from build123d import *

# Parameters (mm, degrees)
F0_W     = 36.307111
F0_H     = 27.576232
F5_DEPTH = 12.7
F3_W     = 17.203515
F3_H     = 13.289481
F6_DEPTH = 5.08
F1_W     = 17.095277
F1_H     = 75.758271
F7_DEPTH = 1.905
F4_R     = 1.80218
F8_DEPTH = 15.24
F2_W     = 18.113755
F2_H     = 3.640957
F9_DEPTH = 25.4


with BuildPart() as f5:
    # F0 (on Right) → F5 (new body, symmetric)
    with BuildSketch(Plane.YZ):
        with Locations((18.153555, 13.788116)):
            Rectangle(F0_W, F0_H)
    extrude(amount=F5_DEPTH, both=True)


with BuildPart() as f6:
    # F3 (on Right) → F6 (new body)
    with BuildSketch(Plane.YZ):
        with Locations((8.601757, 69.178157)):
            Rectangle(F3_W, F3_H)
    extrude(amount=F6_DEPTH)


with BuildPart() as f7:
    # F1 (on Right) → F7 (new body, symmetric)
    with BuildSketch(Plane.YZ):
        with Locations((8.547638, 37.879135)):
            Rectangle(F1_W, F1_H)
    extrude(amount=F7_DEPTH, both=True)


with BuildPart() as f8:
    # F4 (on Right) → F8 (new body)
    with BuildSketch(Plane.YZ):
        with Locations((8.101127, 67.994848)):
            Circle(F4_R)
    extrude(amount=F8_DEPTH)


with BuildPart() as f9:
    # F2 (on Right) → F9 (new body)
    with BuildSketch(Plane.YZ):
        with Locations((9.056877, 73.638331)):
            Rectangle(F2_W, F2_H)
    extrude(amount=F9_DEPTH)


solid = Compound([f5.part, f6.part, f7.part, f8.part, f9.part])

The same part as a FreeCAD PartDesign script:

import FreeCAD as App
import Part
import Sketcher
from FreeCAD import Vector
Q = App.Units.Quantity


def add_polygon(sketch, points):
    """Adds a closed chain of lines whose ends are joined by coincident constraints."""
    first, n = sketch.GeometryCount, len(points)
    for a, b in zip(points, points[1:] + points[:1]):
        sketch.addGeometry(Part.LineSegment(App.Vector(*a, 0), App.Vector(*b, 0)), False)
    for i in range(n):
        sketch.addConstraint(Sketcher.Constraint("Coincident", first + i, 2, first + (i + 1) % n, 1))

doc = App.newDocument("Part")
body = doc.addObject("PartDesign::Body", "Body")

sketch1 = body.newObject("Sketcher::SketchObject", "Sketch")
sketch1.AttachmentSupport = (doc.getObject("YZ_Plane"), [""])
sketch1.MapMode = "FlatFace"
add_polygon(sketch1, [(0, 28), (0, 0), (36, 0), (36, 28)])
sketch1.addConstraint(Sketcher.Constraint("Vertical", 0))
sketch1.addConstraint(Sketcher.Constraint("Horizontal", 1))
sketch1.addConstraint(Sketcher.Constraint("Vertical", 2))
sketch1.addConstraint(Sketcher.Constraint("Horizontal", 3))
sketch1.addConstraint(Sketcher.Constraint("Coincident", 0, 2, -1, 1))
sketch1.addConstraint(Sketcher.Constraint("DistanceX", 1, 1, 1, 2, Q("36.307111 mm")))
sketch1.addConstraint(Sketcher.Constraint("DistanceY", 0, 2, 0, 1, Q("27.576232 mm")))
pad1 = body.newObject("PartDesign::Pad", "Pad")
pad1.Profile = sketch1
pad1.Length = Q("1 in")
pad1.Midplane = True
body2 = doc.addObject("PartDesign::Body", "Body001")

sketch2 = body2.newObject("Sketcher::SketchObject", "Sketch001")
sketch2.AttachmentSupport = (doc.getObject("YZ_Plane001"), [""])
sketch2.MapMode = "FlatFace"
add_polygon(sketch2, [(0, 76), (0, 63), (17, 63), (17, 76)])
sketch2.addConstraint(Sketcher.Constraint("Vertical", 0))
sketch2.addConstraint(Sketcher.Constraint("Horizontal", 1))
sketch2.addConstraint(Sketcher.Constraint("Vertical", 2))
sketch2.addConstraint(Sketcher.Constraint("Horizontal", 3))
sketch2.addConstraint(Sketcher.Constraint("PointOnObject", 0, 2, -2))
sketch2.addConstraint(Sketcher.Constraint("DistanceY", 0, 2, 0, 1, Q("13.289481 mm")))
sketch2.addConstraint(Sketcher.Constraint("DistanceX", 1, 1, 1, 2, Q("17.203515 mm")))
sketch2.addConstraint(Sketcher.Constraint("DistanceY", -1, 1, 0, 2, Q("62.533417 mm")))
pad2 = body2.newObject("PartDesign::Pad", "Pad001")
pad2.Profile = sketch2
pad2.Length = Q("0.2 in")
body3 = doc.addObject("PartDesign::Body", "Body002")

sketch3 = body3.newObject("Sketcher::SketchObject", "Sketch002")
sketch3.AttachmentSupport = (doc.getObject("YZ_Plane002"), [""])
sketch3.MapMode = "FlatFace"
add_polygon(sketch3, [(0, 76), (0, 0), (17, 0), (17, 76)])
sketch3.addConstraint(Sketcher.Constraint("Vertical", 0))
sketch3.addConstraint(Sketcher.Constraint("Horizontal", 1))
sketch3.addConstraint(Sketcher.Constraint("Vertical", 2))
sketch3.addConstraint(Sketcher.Constraint("Horizontal", 3))
sketch3.addConstraint(Sketcher.Constraint("Coincident", 0, 2, -1, 1))
sketch3.addConstraint(Sketcher.Constraint("DistanceY", 0, 2, 0, 1, Q("75.758271 mm")))
sketch3.addConstraint(Sketcher.Constraint("DistanceX", 1, 1, 1, 2, Q("17.095277 mm")))
pad3 = body3.newObject("PartDesign::Pad", "Pad002")
pad3.Profile = sketch3
pad3.Length = Q("0.15 in")
pad3.Midplane = True
body4 = doc.addObject("PartDesign::Body", "Body003")

sketch4 = body4.newObject("Sketcher::SketchObject", "Sketch003")
sketch4.AttachmentSupport = (doc.getObject("YZ_Plane003"), [""])
sketch4.MapMode = "FlatFace"
sketch4.addGeometry(Part.Circle(Vector(8.1, 68, 0), Vector(0, 0, 1), 1.8), False)
sketch4.addConstraint(Sketcher.Constraint("Diameter", 0, Q("3.60436 mm")))
sketch4.addConstraint(Sketcher.Constraint("DistanceY", -1, 1, 0, 3, Q("67.994848 mm")))
sketch4.addConstraint(Sketcher.Constraint("DistanceX", -1, 1, 0, 3, Q("8.101127 mm")))
pad4 = body4.newObject("PartDesign::Pad", "Pad003")
pad4.Profile = sketch4
pad4.Length = Q("0.6 in")
body5 = doc.addObject("PartDesign::Body", "Body004")

sketch5 = body5.newObject("Sketcher::SketchObject", "Sketch004")
sketch5.AttachmentSupport = (doc.getObject("YZ_Plane004"), [""])
sketch5.MapMode = "FlatFace"
add_polygon(sketch5, [(0, 75.5), (0, 71.8), (18.1, 71.8), (18.1, 75.5)])
sketch5.addConstraint(Sketcher.Constraint("Vertical", 0))
sketch5.addConstraint(Sketcher.Constraint("Horizontal", 1))
sketch5.addConstraint(Sketcher.Constraint("Vertical", 2))
sketch5.addConstraint(Sketcher.Constraint("Horizontal", 3))
sketch5.addConstraint(Sketcher.Constraint("PointOnObject", 0, 2, -2))
sketch5.addConstraint(Sketcher.Constraint("DistanceX", 1, 1, 1, 2, Q("18.113755 mm")))
sketch5.addConstraint(Sketcher.Constraint("DistanceY", 0, 2, 0, 1, Q("3.640957 mm")))
sketch5.addConstraint(Sketcher.Constraint("DistanceY", -1, 1, 2, 2, Q("75.45881 mm")))
pad5 = body5.newObject("PartDesign::Pad", "Pad004")
pad5.Profile = sketch5
pad5.Length = Q("1 in")

doc.recompute()
